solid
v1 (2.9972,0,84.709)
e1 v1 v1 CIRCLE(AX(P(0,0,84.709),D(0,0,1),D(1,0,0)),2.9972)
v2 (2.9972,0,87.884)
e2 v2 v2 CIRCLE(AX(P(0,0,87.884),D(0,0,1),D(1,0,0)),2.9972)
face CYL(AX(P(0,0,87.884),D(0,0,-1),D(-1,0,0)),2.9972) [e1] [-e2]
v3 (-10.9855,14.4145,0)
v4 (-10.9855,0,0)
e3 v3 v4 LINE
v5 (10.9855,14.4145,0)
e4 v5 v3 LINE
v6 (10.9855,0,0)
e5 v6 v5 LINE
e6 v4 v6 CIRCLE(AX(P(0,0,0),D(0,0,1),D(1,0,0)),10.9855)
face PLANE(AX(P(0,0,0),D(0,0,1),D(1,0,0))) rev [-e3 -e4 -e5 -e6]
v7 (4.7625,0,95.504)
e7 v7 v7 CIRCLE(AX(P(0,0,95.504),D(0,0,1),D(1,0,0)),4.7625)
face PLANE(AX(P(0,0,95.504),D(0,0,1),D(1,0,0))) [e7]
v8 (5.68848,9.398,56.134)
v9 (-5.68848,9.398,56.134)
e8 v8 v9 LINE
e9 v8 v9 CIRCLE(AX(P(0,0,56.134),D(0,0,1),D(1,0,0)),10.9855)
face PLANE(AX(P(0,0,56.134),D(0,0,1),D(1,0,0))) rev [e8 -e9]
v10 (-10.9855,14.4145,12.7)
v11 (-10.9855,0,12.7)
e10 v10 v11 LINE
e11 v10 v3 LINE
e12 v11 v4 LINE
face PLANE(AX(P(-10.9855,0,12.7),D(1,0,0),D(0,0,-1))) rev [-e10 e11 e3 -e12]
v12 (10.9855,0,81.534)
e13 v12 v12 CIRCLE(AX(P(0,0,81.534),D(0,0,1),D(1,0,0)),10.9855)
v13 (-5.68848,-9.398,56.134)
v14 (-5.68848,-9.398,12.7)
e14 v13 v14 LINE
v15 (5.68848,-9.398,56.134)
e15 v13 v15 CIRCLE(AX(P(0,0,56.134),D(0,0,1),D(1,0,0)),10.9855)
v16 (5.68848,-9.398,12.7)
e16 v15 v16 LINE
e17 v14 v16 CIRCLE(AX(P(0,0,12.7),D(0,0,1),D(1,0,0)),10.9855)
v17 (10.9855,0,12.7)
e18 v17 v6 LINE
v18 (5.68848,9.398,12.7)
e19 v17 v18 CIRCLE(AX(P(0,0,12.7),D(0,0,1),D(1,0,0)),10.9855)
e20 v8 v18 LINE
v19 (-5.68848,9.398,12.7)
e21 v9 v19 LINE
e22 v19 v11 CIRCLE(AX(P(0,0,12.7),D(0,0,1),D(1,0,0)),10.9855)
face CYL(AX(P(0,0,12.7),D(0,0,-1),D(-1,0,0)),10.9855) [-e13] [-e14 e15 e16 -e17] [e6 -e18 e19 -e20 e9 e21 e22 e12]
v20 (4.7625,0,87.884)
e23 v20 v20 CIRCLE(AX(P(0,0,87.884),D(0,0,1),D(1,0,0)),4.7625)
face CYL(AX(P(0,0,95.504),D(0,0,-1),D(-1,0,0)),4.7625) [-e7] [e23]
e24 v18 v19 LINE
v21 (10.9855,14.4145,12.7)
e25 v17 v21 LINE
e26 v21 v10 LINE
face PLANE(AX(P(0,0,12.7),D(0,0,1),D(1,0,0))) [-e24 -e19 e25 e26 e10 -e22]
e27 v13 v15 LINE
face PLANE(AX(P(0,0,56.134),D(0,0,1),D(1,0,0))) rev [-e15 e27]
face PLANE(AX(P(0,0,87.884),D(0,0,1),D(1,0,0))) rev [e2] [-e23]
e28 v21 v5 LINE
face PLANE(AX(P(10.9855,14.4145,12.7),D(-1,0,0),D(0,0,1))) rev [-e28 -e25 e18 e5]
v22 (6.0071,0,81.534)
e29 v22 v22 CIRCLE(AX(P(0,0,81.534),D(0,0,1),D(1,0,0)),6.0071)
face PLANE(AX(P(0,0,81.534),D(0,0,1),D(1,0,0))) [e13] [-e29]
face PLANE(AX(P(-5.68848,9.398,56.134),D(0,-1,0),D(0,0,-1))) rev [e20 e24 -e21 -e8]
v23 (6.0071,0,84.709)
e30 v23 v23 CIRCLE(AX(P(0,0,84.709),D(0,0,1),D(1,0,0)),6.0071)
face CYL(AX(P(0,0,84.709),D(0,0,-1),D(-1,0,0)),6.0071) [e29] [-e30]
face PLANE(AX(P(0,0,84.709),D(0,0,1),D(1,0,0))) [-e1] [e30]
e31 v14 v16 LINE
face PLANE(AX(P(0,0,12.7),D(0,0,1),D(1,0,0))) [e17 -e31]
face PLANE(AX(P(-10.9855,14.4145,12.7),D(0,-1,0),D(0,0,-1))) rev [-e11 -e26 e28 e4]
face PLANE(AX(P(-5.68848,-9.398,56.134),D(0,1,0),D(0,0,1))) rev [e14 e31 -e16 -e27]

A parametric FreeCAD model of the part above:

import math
import FreeCAD as App
import Part
import Sketcher
from FreeCAD import Vector
Q = App.Units.Quantity

doc = App.newDocument("Part")
body = doc.addObject("PartDesign::Body", "Body")

# Sketch on XY plane
sketch1 = body.newObject("Sketcher::SketchObject", "Sketch")
sketch1.AttachmentSupport = (doc.getObject("XY_Plane"), [""])
sketch1.MapMode = "FlatFace"
sketch1.addGeometry([
    Part.LineSegment(Vector(-10.9855, 14.4145, 0), Vector(-10.9855, 0, 0)),
    Part.ArcOfCircle(Part.Circle(Vector(0, 0, 0), Vector(0, 0, 1), 10.9855), math.radians(180), math.radians(360)),
    Part.LineSegment(Vector(10.9855, 0, 0), Vector(10.9855, 14.4145, 0)),
    Part.LineSegment(Vector(10.9855, 14.4145, 0), Vector(-10.9855, 14.4145, 0)),
], False)
sketch1.addConstraint([
    Sketcher.Constraint("Tangent", 0, 2, 1, 1),
    Sketcher.Constraint("Tangent", 1, 2, 2, 1),
    Sketcher.Constraint("Coincident", 2, 2, 3, 1),
    Sketcher.Constraint("Coincident", 3, 2, 0, 1),
    Sketcher.Constraint("Vertical", 0),
    Sketcher.Constraint("Vertical", 2),
    Sketcher.Constraint("Horizontal", 3),
    Sketcher.Constraint("Coincident", 1, 3, -1, 1),
    Sketcher.Constraint("Radius", 1, Q("0.4325 in")),
    Sketcher.Constraint("DistanceY", 0, 2, 0, 1, Q("0.5675 in")),
])
pad1 = body.newObject("PartDesign::Pad", "Pad")
pad1.Profile = sketch1
pad1.Length = Q("0.5 in")

# Sketch on XY plane
sketch2 = body.newObject("Sketcher::SketchObject", "Sketch001")
sketch2.AttachmentSupport = (doc.getObject("XY_Plane"), [""])
sketch2.MapMode = "FlatFace"
sketch2.AttachmentOffset = App.Placement(Vector(0, 0, 0.5 * 25.4), App.Rotation())
sketch2.addGeometry([
    Part.LineSegment(Vector(5.68848, 9.398, 0), Vector(-5.68848, 9.398, 0)),
    Part.ArcOfCircle(Part.Circle(Vector(0, 0, 0), Vector(0, 0, 1), 10.9855), math.radians(121.185942), math.radians(238.814058)),
    Part.LineSegment(Vector(-5.68848, -9.398, 0), Vector(5.68848, -9.398, 0)),
    Part.ArcOfCircle(Part.Circle(Vector(0, 0, 0), Vector(0, 0, 1), 10.9855), math.radians(-58.814058), math.radians(58.814058)),
], False)
sketch2.addConstraint([
    Sketcher.Constraint("Coincident", 0, 2, 1, 1),
    Sketcher.Constraint("Coincident", 1, 2, 2, 1),
    Sketcher.Constraint("Coincident", 2, 2, 3, 1),
    Sketcher.Constraint("Coincident", 3, 2, 0, 1),
    Sketcher.Constraint("Horizontal", 0),
    Sketcher.Constraint("Horizontal", 2),
    Sketcher.Constraint("Coincident", 1, 3, -1, 1),
    Sketcher.Constraint("Coincident", 3, 3, -1, 1),
    Sketcher.Constraint("Equal", 1, 3),
    Sketcher.Constraint("Vertical", 0, 2, 1, 2),
    Sketcher.Constraint("Radius", 1, Q("0.4325 in")),
    Sketcher.Constraint("DistanceY", -1, 1, 0, 2, Q("0.37 in")),
])
pad2 = body.newObject("PartDesign::Pad", "Pad001")
pad2.Profile = sketch2
pad2.Length = Q("1.71 in")

# Sketch on XY plane
sketch3 = body.newObject("Sketcher::SketchObject", "Sketch002")
sketch3.AttachmentSupport = (doc.getObject("XY_Plane"), [""])
sketch3.MapMode = "FlatFace"
sketch3.AttachmentOffset = App.Placement(Vector(0, 0, 2.21 * 25.4), App.Rotation())
sketch3.addGeometry(Part.Circle(Vector(0, 0, 0), Vector(0, 0, 1), 10.9855), False)
sketch3.addConstraint([
    Sketcher.Constraint("Coincident", 0, 3, -1, 1),
    Sketcher.Constraint("Diameter", 0, Q("0.865 in")),
])
pad3 = body.newObject("PartDesign::Pad", "Pad002")
pad3.Profile = sketch3
pad3.Length = Q("1 in")

# Sketch on XY plane
sketch4 = body.newObject("Sketcher::SketchObject", "Sketch003")
sketch4.AttachmentSupport = (doc.getObject("XY_Plane"), [""])
sketch4.MapMode = "FlatFace"
sketch4.AttachmentOffset = App.Placement(Vector(0, 0, 3.21 * 25.4), App.Rotation())
sketch4.addGeometry(Part.Circle(Vector(0, 0, 0), Vector(0, 0, 1), 6.0071), False)
sketch4.addConstraint([
    Sketcher.Constraint("Coincident", 0, 3, -1, 1),
    Sketcher.Constraint("Diameter", 0, Q("0.473 in")),
])
pad4 = body.newObject("PartDesign::Pad", "Pad003")
pad4.Profile = sketch4
pad4.Length = Q("0.125 in")

# Sketch on XY plane
sketch5 = body.newObject("Sketcher::SketchObject", "Sketch004")
sketch5.AttachmentSupport = (doc.getObject("XY_Plane"), [""])
sketch5.MapMode = "FlatFace"
sketch5.AttachmentOffset = App.Placement(Vector(0, 0, 3.335 * 25.4), App.Rotation())
sketch5.addGeometry(Part.Circle(Vector(0, 0, 0), Vector(0, 0, 1), 2.9972), False)
sketch5.addConstraint([
    Sketcher.Constraint("Coincident", 0, 3, -1, 1),
    Sketcher.Constraint("Diameter", 0, Q("0.236 in")),
])
pad5 = body.newObject("PartDesign::Pad", "Pad004")
pad5.Profile = sketch5
pad5.Length = Q("0.125 in")

# Sketch on XY plane
sketch6 = body.newObject("Sketcher::SketchObject", "Sketch005")
sketch6.AttachmentSupport = (doc.getObject("XY_Plane"), [""])
sketch6.MapMode = "FlatFace"
sketch6.AttachmentOffset = App.Placement(Vector(0, 0, 3.46 * 25.4), App.Rotation())
sketch6.addGeometry(Part.Circle(Vector(0, 0, 0), Vector(0, 0, 1), 4.7625), False)
sketch6.addConstraint([
    Sketcher.Constraint("Coincident", 0, 3, -1, 1),
    Sketcher.Constraint("Diameter", 0, Q("0.375 in")),
])
pad6 = body.newObject("PartDesign::Pad", "Pad005")
pad6.Profile = sketch6
pad6.Length = Q("0.3 in")

doc.recompute()
